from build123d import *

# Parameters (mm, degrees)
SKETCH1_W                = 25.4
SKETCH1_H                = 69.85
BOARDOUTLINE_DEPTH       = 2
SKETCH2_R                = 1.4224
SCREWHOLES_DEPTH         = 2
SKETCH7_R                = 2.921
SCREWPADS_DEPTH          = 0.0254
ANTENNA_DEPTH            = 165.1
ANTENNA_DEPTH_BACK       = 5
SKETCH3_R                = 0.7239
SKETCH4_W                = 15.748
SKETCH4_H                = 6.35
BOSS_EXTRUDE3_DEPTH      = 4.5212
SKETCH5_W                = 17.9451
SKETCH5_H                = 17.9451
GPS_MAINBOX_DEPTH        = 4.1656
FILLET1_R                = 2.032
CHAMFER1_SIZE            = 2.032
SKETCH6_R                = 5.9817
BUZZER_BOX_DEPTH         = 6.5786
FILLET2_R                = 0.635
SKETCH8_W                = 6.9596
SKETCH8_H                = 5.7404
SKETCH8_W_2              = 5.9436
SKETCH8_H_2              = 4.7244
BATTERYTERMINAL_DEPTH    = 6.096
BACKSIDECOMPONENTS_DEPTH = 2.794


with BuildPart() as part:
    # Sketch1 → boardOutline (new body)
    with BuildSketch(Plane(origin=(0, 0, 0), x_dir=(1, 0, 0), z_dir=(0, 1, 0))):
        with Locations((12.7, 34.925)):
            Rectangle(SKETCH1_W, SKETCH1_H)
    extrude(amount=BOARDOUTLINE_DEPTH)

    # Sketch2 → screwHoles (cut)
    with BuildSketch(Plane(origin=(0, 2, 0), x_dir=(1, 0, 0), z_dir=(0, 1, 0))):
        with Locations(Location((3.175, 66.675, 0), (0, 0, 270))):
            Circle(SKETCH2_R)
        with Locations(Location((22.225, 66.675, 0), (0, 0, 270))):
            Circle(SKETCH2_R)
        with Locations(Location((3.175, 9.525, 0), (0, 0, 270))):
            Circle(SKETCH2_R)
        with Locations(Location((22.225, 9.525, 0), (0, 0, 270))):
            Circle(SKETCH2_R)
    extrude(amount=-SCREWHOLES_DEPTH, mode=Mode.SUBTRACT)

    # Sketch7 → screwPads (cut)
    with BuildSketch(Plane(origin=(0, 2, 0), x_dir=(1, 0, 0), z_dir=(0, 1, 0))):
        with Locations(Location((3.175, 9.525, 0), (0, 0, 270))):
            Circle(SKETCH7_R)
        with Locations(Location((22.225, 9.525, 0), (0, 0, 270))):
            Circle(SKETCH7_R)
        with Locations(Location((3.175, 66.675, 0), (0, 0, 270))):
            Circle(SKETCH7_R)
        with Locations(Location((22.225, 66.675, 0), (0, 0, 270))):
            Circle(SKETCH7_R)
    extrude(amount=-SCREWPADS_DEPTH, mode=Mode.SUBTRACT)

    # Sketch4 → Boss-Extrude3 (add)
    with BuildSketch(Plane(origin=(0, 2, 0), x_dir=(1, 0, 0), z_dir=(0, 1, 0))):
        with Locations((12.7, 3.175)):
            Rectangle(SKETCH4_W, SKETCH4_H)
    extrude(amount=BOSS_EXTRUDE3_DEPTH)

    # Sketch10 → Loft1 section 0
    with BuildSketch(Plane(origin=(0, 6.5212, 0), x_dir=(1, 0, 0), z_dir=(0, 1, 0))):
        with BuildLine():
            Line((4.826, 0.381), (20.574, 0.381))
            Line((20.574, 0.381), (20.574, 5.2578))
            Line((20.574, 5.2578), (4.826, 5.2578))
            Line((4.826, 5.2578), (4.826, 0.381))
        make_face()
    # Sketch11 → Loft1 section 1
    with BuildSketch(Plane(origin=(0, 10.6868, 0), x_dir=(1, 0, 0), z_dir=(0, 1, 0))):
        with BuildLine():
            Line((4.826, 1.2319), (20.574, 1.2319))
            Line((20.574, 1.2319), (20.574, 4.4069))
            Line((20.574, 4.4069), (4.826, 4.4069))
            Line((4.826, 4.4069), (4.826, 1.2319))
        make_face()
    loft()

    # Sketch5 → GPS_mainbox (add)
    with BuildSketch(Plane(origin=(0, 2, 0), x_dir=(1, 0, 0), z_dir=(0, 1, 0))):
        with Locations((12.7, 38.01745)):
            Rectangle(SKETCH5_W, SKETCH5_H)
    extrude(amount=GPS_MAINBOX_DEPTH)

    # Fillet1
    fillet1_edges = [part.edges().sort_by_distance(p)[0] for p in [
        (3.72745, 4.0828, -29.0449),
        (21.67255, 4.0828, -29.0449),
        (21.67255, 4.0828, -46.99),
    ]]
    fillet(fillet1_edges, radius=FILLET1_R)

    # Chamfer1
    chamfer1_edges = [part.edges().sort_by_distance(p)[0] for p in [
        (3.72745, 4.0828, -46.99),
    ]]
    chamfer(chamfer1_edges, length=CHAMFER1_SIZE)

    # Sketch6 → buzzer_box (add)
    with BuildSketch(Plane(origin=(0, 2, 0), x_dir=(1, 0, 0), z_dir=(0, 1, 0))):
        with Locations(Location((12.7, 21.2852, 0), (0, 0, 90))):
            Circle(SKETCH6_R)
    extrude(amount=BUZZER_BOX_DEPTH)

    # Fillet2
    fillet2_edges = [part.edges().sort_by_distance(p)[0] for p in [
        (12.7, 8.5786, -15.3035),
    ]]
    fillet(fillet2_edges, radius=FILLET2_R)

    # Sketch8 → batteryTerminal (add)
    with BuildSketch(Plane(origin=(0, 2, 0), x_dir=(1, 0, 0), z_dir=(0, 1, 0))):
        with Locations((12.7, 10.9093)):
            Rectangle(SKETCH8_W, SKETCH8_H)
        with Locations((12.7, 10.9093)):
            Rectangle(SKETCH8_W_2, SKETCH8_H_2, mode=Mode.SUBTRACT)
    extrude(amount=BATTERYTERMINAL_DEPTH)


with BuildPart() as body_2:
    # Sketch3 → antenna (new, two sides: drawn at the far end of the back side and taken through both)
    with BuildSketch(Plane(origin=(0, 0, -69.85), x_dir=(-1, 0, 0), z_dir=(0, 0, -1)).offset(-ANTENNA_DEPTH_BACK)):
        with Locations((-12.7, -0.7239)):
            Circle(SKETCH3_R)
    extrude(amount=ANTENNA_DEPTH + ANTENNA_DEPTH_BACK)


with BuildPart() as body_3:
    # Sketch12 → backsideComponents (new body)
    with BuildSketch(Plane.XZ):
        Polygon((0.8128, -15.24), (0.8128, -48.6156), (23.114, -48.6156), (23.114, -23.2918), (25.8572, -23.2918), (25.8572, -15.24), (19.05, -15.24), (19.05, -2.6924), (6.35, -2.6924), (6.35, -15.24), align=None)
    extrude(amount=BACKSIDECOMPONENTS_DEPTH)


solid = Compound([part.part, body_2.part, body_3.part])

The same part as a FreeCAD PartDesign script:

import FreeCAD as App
import Part
import Sketcher
Q = App.Units.Quantity


def edges_at(feature, points):
    """Names of the edges that pass closest to the given points."""
    edges = feature.Shape.Edges
    near = lambda p: min(range(len(edges)), key=lambda i: edges[i].distToShape(Part.Vertex(*p))[0])
    return sorted({f"Edge{near(p) + 1}" for p in points})


def add_polygon(sketch, points):
    """Adds a closed chain of lines whose ends are joined by coincident constraints."""
    first, n = sketch.GeometryCount, len(points)
    for a, b in zip(points, points[1:] + points[:1]):
        sketch.addGeometry(Part.LineSegment(App.Vector(*a, 0), App.Vector(*b, 0)), False)
    for i in range(n):
        sketch.addConstraint(Sketcher.Constraint("Coincident", first + i, 2, first + (i + 1) % n, 1))

doc = App.newDocument("Part")
params = doc.addObject("Spreadsheet::Sheet", "Params")
for row, (alias, value) in enumerate([
    ("sketch1_width", "1 in"),
    ("sketch1_height", "2.75 in"),
    ("pad1_length", "2 mm"),
    ("sketch2_diameter", "0.112 in"),
    ("pocket1_length", "2 mm"),
    ("sketch3_diameter", "0.23 in"),
    ("pocket2_length", "0.001 in"),
    ("sketch4_width", "0.62 in"),
    ("sketch4_height", "0.25 in"),
    ("pad2_length", "0.178 in"),
    ("sketch5_width", "0.62 in"),
    ("sketch5_height", "0.192 in"),
    ("sketch6_width", "0.62 in"),
    ("sketch6_height", "0.125 in"),
    ("pad3_length", "0.164 in"),
    ("fillet_radius", "0.08 in"),
    ("chamfer_size", "0.08 in"),
    ("sketch8_diameter", "0.471 in"),
    ("pad4_length", "0.259 in"),
    ("fillet2_radius", "0.025 in"),
    ("sketch9_width", "0.274 in"),
    ("sketch9_width2", "0.234 in"),
    ("sketch9_height", "0.226 in"),
    ("sketch9_height2", "0.186 in"),
    ("pad5_length", "0.24 in"),
    ("sketch10_diameter", "0.057 in"),
    ("pad6_length", "6.5 in"),
    ("pad6_length2", "5 mm"),
    ("sketch11_width", "0.5 in"),
    ("sketch11_width2", "0.878 in"),
    ("sketch11_width3", "0.108 in"),
    ("sketch11_width4", "0.268 in"),
    ("sketch11_height", "1.314 in"),
    ("pad7_length", "0.11 in"),
], start=1):
    params.set(f"A{row}", alias)
    params.set(f"B{row}", "=" + value)
    params.setAlias(f"B{row}", alias)

body = doc.addObject("PartDesign::Body", "Body")

# Sketch on XZ plane
sketch1 = body.newObject("Sketcher::SketchObject", "Sketch")
sketch1.AttachmentSupport = (doc.getObject("XZ_Plane"), [""])
sketch1.MapMode = "FlatFace"
add_polygon(sketch1, [(0, -70), (0, 0), (25, 0), (25, -70)])  # lines 0-3
sketch1.addConstraint([
    Sketcher.Constraint("Vertical", 0),
    Sketcher.Constraint("Horizontal", 1),
    Sketcher.Constraint("Vertical", 2),
    Sketcher.Constraint("Horizontal", 3),
    Sketcher.Constraint("Coincident", 0, 2, -1, 1),
    Sketcher.Constraint("DistanceX", 1, 1, 1, 2, Q("1 in")),
    Sketcher.Constraint("DistanceY", 0, 1, 0, 2, Q("2.75 in")),
])
sketch1.setExpression("Constraints[9]", "Params.sketch1_width")
sketch1.setExpression("Constraints[10]", "Params.sketch1_height")
pad1 = body.newObject("PartDesign::Pad", "Pad")
pad1.Profile = sketch1
pad1.setExpression("Length", "Params.pad1_length")
pad1.Reversed = True

# Sketch on XZ plane
sketch2 = body.newObject("Sketcher::SketchObject", "Sketch001")
sketch2.AttachmentSupport = (doc.getObject("XZ_Plane"), [""])
sketch2.MapMode = "FlatFace"
sketch2.AttachmentOffset = App.Placement(App.Vector(0, 0, -2), App.Rotation())
sketch2.addGeometry([
    Part.Circle(App.Vector(3.2, -66.7, 0), App.Vector(0, 0, 1), 1.4),
    Part.Circle(App.Vector(22.2, -66.7, 0), App.Vector(0, 0, 1), 1.4),
    Part.Circle(App.Vector(3.2, -9.5, 0), App.Vector(0, 0, 1), 1.4),
    Part.Circle(App.Vector(22.2, -9.5, 0), App.Vector(0, 0, 1), 1.4),
], False)
sketch2.addConstraint([
    Sketcher.Constraint("Equal", 0, 1),
    Sketcher.Constraint("Equal", 1, 2),
    Sketcher.Constraint("Equal", 2, 3),
    Sketcher.Constraint("Horizontal", 0, 3, 1, 3),
    Sketcher.Constraint("Horizontal", 2, 3, 3, 3),
    Sketcher.Constraint("Vertical", 0, 3, 2, 3),
    Sketcher.Constraint("Vertical", 1, 3, 3, 3),
    Sketcher.Constraint("Diameter", 0, Q("0.112 in")),
    Sketcher.Constraint("DistanceX", 0, 3, 1, 3, Q("0.75 in")),
    Sketcher.Constraint("DistanceY", 0, 3, 2, 3, Q("2.25 in")),
    Sketcher.Constraint("DistanceX", -1, 1, 0, 3, Q("0.125 in")),
    Sketcher.Constraint("DistanceY", 0, 3, -1, 1, Q("2.625 in")),
])
sketch2.setExpression("Constraints[7]", "Params.sketch2_diameter")
pocket1 = body.newObject("PartDesign::Pocket", "Pocket")
pocket1.Profile = sketch2
pocket1.setExpression("Length", "Params.pocket1_length")
pocket1.Reversed = True

# Sketch on XZ plane
sketch3 = body.newObject("Sketcher::SketchObject", "Sketch002")
sketch3.AttachmentSupport = (doc.getObject("XZ_Plane"), [""])
sketch3.MapMode = "FlatFace"
sketch3.AttachmentOffset = App.Placement(App.Vector(0, 0, -2), App.Rotation())
sketch3.addGeometry([
    Part.Circle(App.Vector(3.2, -9.5, 0), App.Vector(0, 0, 1), 2.9),
    Part.Circle(App.Vector(22.2, -9.5, 0), App.Vector(0, 0, 1), 2.9),
    Part.Circle(App.Vector(3.2, -66.7, 0), App.Vector(0, 0, 1), 2.9),
    Part.Circle(App.Vector(22.2, -66.7, 0), App.Vector(0, 0, 1), 2.9),
], False)
sketch3.addConstraint([
    Sketcher.Constraint("Equal", 0, 1),
    Sketcher.Constraint("Equal", 1, 2),
    Sketcher.Constraint("Equal", 2, 3),
    Sketcher.Constraint("Horizontal", 0, 3, 1, 3),
    Sketcher.Constraint("Horizontal", 2, 3, 3, 3),
    Sketcher.Constraint("Vertical", 0, 3, 2, 3),
    Sketcher.Constraint("Vertical", 1, 3, 3, 3),
    Sketcher.Constraint("Diameter", 0, Q("0.23 in")),
    Sketcher.Constraint("DistanceX", 0, 3, 1, 3, Q("0.75 in")),
    Sketcher.Constraint("DistanceY", 2, 3, 0, 3, Q("2.25 in")),
    Sketcher.Constraint("DistanceX", -1, 1, 0, 3, Q("0.125 in")),
    Sketcher.Constraint("DistanceY", 0, 3, -1, 1, Q("0.375 in")),
])
sketch3.setExpression("Constraints[7]", "Params.sketch3_diameter")
pocket2 = body.newObject("PartDesign::Pocket", "Pocket001")
pocket2.Profile = sketch3
pocket2.setExpression("Length", "Params.pocket2_length")
pocket2.Reversed = True

# Sketch on XZ plane
sketch4 = body.newObject("Sketcher::SketchObject", "Sketch003")
sketch4.AttachmentSupport = (doc.getObject("XZ_Plane"), [""])
sketch4.MapMode = "FlatFace"
sketch4.AttachmentOffset = App.Placement(App.Vector(0, 0, -2), App.Rotation())
add_polygon(sketch4, [(5, -6), (5, 0), (21, 0), (21, -6)])  # lines 0-3
sketch4.addConstraint([
    Sketcher.Constraint("Vertical", 0),
    Sketcher.Constraint("Horizontal", 1),
    Sketcher.Constraint("Vertical", 2),
    Sketcher.Constraint("Horizontal", 3),
    Sketcher.Constraint("PointOnObject", 0, 2, -1),
    Sketcher.Constraint("DistanceX", 1, 1, 1, 2, Q("0.62 in")),
    Sketcher.Constraint("DistanceY", 0, 1, 0, 2, Q("0.25 in")),
    Sketcher.Constraint("DistanceX", -1, 1, 0, 2, Q("0.19 in")),
])
sketch4.setExpression("Constraints[9]", "Params.sketch4_width")
sketch4.setExpression("Constraints[10]", "Params.sketch4_height")
pad2 = body.newObject("PartDesign::Pad", "Pad001")
pad2.Profile = sketch4
pad2.setExpression("Length", "Params.pad2_length")
pad2.Reversed = True

# Sketch on XZ plane
sketch5 = body.newObject("Sketcher::SketchObject", "Sketch004")
sketch5.AttachmentSupport = (doc.getObject("XZ_Plane"), [""])
sketch5.MapMode = "FlatFace"
sketch5.AttachmentOffset = App.Placement(App.Vector(0, 0, -6.5212), App.Rotation())
add_polygon(sketch5, [(4.8, -0.4), (20.6, -0.4), (20.6, -5.3), (4.8, -5.3)])  # lines 0-3
sketch5.addConstraint([
    Sketcher.Constraint("Horizontal", 0),
    Sketcher.Constraint("Vertical", 1),
    Sketcher.Constraint("Horizontal", 2),
    Sketcher.Constraint("Vertical", 3),
    Sketcher.Constraint("DistanceX", 0, 1, 0, 2, Q("0.62 in")),
    Sketcher.Constraint("DistanceY", 1, 2, 1, 1, Q("0.192 in")),
    Sketcher.Constraint("DistanceX", -1, 1, 0, 2, Q("0.81 in")),
    Sketcher.Constraint("DistanceY", 0, 2, -1, 1, Q("0.015 in")),
])
sketch5.setExpression("Constraints[8]", "Params.sketch5_width")
sketch5.setExpression("Constraints[9]", "Params.sketch5_height")

# Sketch on XZ plane
sketch6 = body.newObject("Sketcher::SketchObject", "Sketch005")
sketch6.AttachmentSupport = (doc.getObject("XZ_Plane"), [""])
sketch6.MapMode = "FlatFace"
sketch6.AttachmentOffset = App.Placement(App.Vector(0, 0, -10.6868), App.Rotation())
add_polygon(sketch6, [(4.8, -1.2), (20.6, -1.2), (20.6, -4.4), (4.8, -4.4)])  # lines 0-3
sketch6.addConstraint([
    Sketcher.Constraint("Horizontal", 0),
    Sketcher.Constraint("Vertical", 1),
    Sketcher.Constraint("Horizontal", 2),
    Sketcher.Constraint("Vertical", 3),
    Sketcher.Constraint("DistanceX", 0, 1, 0, 2, Q("0.62 in")),
    Sketcher.Constraint("DistanceY", 1, 2, 1, 1, Q("0.125 in")),
    Sketcher.Constraint("DistanceX", -1, 1, 0, 2, Q("0.81 in")),
    Sketcher.Constraint("DistanceY", 0, 2, -1, 1, Q("0.0485 in")),
])
sketch6.setExpression("Constraints[8]", "Params.sketch6_width")
sketch6.setExpression("Constraints[9]", "Params.sketch6_height")

additiveloft = body.newObject("PartDesign::AdditiveLoft", "AdditiveLoft")
additiveloft.Profile = sketch5
additiveloft.Sections = [sketch6]

# Sketch on XZ plane
sketch7 = body.newObject("Sketcher::SketchObject", "Sketch006")
sketch7.AttachmentSupport = (doc.getObject("XZ_Plane"), [""])
sketch7.MapMode = "FlatFace"
sketch7.AttachmentOffset = App.Placement(App.Vector(0, 0, -2), App.Rotation())
add_polygon(sketch7, [(4, -47), (4, -29), (22, -29), (22, -47)])  # lines 0-3
sketch7.addConstraint([
    Sketcher.Constraint("Vertical", 0),
    Sketcher.Constraint("Horizontal", 1),
    Sketcher.Constraint("Vertical", 2),
    Sketcher.Constraint("Horizontal", 3),
    Sketcher.Constraint("Equal", 3, 0),
    Sketcher.Constraint("DistanceY", 2, 2, -1, 1, Q("1.85 in")),
    Sketcher.Constraint("DistanceX", 1, 1, 1, 2, Q("0.7065 in")),
    Sketcher.Constraint("DistanceX", -1, 1, 0, 2, Q("3.72745 mm")),
])
pad3 = body.newObject("PartDesign::Pad", "Pad002")
pad3.Profile = sketch7
pad3.setExpression("Length", "Params.pad3_length")
pad3.Reversed = True
doc.recompute()

fillet = body.newObject("PartDesign::Fillet", "Fillet")
fillet.Base = (pad3, edges_at(pad3, [(3.727, 4.083, -29.045), (21.673, 4.083, -29.045), (21.673, 4.083, -46.99)]))
fillet.setExpression("Radius", "Params.fillet_radius")
doc.recompute()

chamfer = body.newObject("PartDesign::Chamfer", "Chamfer")
chamfer.Base = (fillet, edges_at(fillet, [(3.727, 4.083, -46.99)]))
chamfer.setExpression("Size", "Params.chamfer_size")

# Sketch on XZ plane
sketch8 = body.newObject("Sketcher::SketchObject", "Sketch007")
sketch8.AttachmentSupport = (doc.getObject("XZ_Plane"), [""])
sketch8.MapMode = "FlatFace"
sketch8.AttachmentOffset = App.Placement(App.Vector(0, 0, -2), App.Rotation())
sketch8.addGeometry(Part.Circle(App.Vector(13, -21, 0), App.Vector(0, 0, 1), 6), False)
sketch8.addConstraint([
    Sketcher.Constraint("Diameter", 0, Q("0.471 in")),
    Sketcher.Constraint("DistanceX", -1, 1, 0, 3, Q("0.5 in")),
    Sketcher.Constraint("DistanceY", 0, 3, -1, 1, Q("0.838 in")),
])
sketch8.setExpression("Constraints[0]", "Params.sketch8_diameter")
pad4 = body.newObject("PartDesign::Pad", "Pad003")
pad4.Profile = sketch8
pad4.setExpression("Length", "Params.pad4_length")
pad4.Reversed = True
doc.recompute()

fillet2 = body.newObject("PartDesign::Fillet", "Fillet001")
fillet2.Base = (pad4, edges_at(pad4, [(12.7, 8.579, -15.303)]))
fillet2.setExpression("Radius", "Params.fillet2_radius")

# Sketch on XZ plane
sketch9 = body.newObject("Sketcher::SketchObject", "Sketch008")
sketch9.AttachmentSupport = (doc.getObject("XZ_Plane"), [""])
sketch9.MapMode = "FlatFace"
sketch9.AttachmentOffset = App.Placement(App.Vector(0, 0, -2), App.Rotation())
add_polygon(sketch9, [(9.2, -13.8), (9.2, -8), (16.2, -8), (16.2, -13.8)])  # lines 0-3
add_polygon(sketch9, [(15.7, -8.5), (9.7, -8.5), (9.7, -13.3), (15.7, -13.3)])  # lines 4-7
sketch9.addConstraint([
    Sketcher.Constraint("Vertical", 0),
    Sketcher.Constraint("Horizontal", 1),
    Sketcher.Constraint("Vertical", 2),
    Sketcher.Constraint("Horizontal", 3),
    Sketcher.Constraint("Horizontal", 4),
    Sketcher.Constraint("Vertical", 5),
    Sketcher.Constraint("Horizontal", 6),
    Sketcher.Constraint("Vertical", 7),
    Sketcher.Constraint("DistanceX", 1, 1, 1, 2, Q("0.274 in")),
    Sketcher.Constraint("DistanceX", 4, 2, 4, 1, Q("0.234 in")),
    Sketcher.Constraint("DistanceY", 0, 1, 0, 2, Q("0.226 in")),
    Sketcher.Constraint("DistanceY", 5, 2, 5, 1, Q("0.186 in")),
    Sketcher.Constraint("DistanceX", 0, 2, 4, 2, Q("0.02 in")),
    Sketcher.Constraint("DistanceY", 4, 2, 0, 2, Q("0.02 in")),
    Sketcher.Constraint("DistanceX", -1, 1, 0, 2, Q("0.363 in")),
    Sketcher.Constraint("DistanceY", 0, 2, -1, 1, Q("0.3165 in")),
])
sketch9.setExpression("Constraints[16]", "Params.sketch9_width")
sketch9.setExpression("Constraints[17]", "Params.sketch9_width2")
sketch9.setExpression("Constraints[18]", "Params.sketch9_height")
sketch9.setExpression("Constraints[19]", "Params.sketch9_height2")
pad5 = body.newObject("PartDesign::Pad", "Pad004")
pad5.Profile = sketch9
pad5.setExpression("Length", "Params.pad5_length")
pad5.Reversed = True
body2 = doc.addObject("PartDesign::Body", "Body001")

# Sketch on XY plane
sketch10 = body2.newObject("Sketcher::SketchObject", "Sketch009")
sketch10.AttachmentSupport = (doc.getObject("XY_Plane001"), [""])
sketch10.MapMode = "FlatFace"
sketch10.AttachmentOffset = App.Placement(App.Vector(0, 0, -2.75 * 25.4), App.Rotation())
sketch10.addGeometry(Part.Circle(App.Vector(12.7, -0.7, 0), App.Vector(0, 0, 1), 0.7), False)
sketch10.addConstraint([
    Sketcher.Constraint("Diameter", 0, Q("0.057 in")),
    Sketcher.Constraint("DistanceX", -1, 1, 0, 3, Q("0.5 in")),
    Sketcher.Constraint("DistanceY", 0, 3, -1, 1, Q("0.0285 in")),
])
sketch10.setExpression("Constraints[0]", "Params.sketch10_diameter")
pad6 = body2.newObject("PartDesign::Pad", "Pad005")
pad6.Profile = sketch10
pad6.Type = "TwoLengths"
pad6.setExpression("Length", "Params.pad6_length")
pad6.setExpression("Length2", "Params.pad6_length2")
pad6.Reversed = True
body3 = doc.addObject("PartDesign::Body", "Body002")

# Sketch on XZ plane
sketch11 = body3.newObject("Sketcher::SketchObject", "Sketch010")
sketch11.AttachmentSupport = (doc.getObject("XZ_Plane002"), [""])
sketch11.MapMode = "FlatFace"
add_polygon(sketch11, [(0.8, -15.2), (0.8, -48.6), (23.1, -48.6), (23.1, -23.3), (25.9, -23.3), (25.9, -15.2), (19.1, -15.2), (19.1, -2.7), (6.3, -2.7), (6.3, -15.2)])  # lines 0-9
sketch11.addConstraint([
    Sketcher.Constraint("Vertical", 0),
    Sketcher.Constraint("Horizontal", 1),
    Sketcher.Constraint("Vertical", 2),
    Sketcher.Constraint("Horizontal", 3),
    Sketcher.Constraint("Vertical", 4),
    Sketcher.Constraint("Horizontal", 5),
    Sketcher.Constraint("Vertical", 6),
    Sketcher.Constraint("Horizontal", 7),
    Sketcher.Constraint("Vertical", 8),
    Sketcher.Constraint("Horizontal", 9),
    Sketcher.Constraint("Horizontal", 5, 2, 8, 2),
    Sketcher.Constraint("DistanceX", 7, 2, 7, 1, Q("0.5 in")),
    Sketcher.Constraint("DistanceY", 4, 2, -1, 1, Q("0.6 in")),
    Sketcher.Constraint("DistanceX", 1, 1, 1, 2, Q("0.878 in")),
    Sketcher.Constraint("DistanceX", 3, 1, 3, 2, Q("0.108 in")),
    Sketcher.Constraint("DistanceX", 5, 2, 5, 1, Q("0.268 in")),
    Sketcher.Constraint("DistanceY", 0, 2, 0, 1, Q("1.314 in")),
    Sketcher.Constraint("DistanceY", 2, 1, 2, 2, Q("0.997 in")),
    Sketcher.Constraint("DistanceY", 6, 1, 6, 2, Q("0.494 in")),
    Sketcher.Constraint("DistanceX", -1, 1, 1, 2, Q("0.91 in")),
])
sketch11.setExpression("Constraints[21]", "Params.sketch11_width")
sketch11.setExpression("Constraints[23]", "Params.sketch11_width2")
sketch11.setExpression("Constraints[24]", "Params.sketch11_width3")
sketch11.setExpression("Constraints[25]", "Params.sketch11_width4")
sketch11.setExpression("Constraints[26]", "Params.sketch11_height")
pad7 = body3.newObject("PartDesign::Pad", "Pad006")
pad7.Profile = sketch11
pad7.setExpression("Length", "Params.pad7_length")

doc.recompute()
